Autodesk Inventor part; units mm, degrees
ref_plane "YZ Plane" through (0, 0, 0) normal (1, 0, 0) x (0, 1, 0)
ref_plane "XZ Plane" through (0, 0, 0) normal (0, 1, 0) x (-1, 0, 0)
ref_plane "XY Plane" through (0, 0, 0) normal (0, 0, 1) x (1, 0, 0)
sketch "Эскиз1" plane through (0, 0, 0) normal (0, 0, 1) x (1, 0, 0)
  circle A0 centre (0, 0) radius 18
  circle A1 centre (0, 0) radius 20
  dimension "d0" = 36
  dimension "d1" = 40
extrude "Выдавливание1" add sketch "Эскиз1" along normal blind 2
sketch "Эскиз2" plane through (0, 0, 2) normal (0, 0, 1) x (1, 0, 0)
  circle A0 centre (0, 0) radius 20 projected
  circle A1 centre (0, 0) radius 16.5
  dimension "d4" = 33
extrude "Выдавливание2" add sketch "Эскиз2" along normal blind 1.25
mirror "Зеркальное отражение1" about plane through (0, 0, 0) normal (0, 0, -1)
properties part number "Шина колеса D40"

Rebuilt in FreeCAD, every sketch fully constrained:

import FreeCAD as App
import Part
import Sketcher

V = App.Vector

doc = App.newDocument("Part")
body = doc.addObject("PartDesign::Body", "Body")

# Sketch on XY plane
sketch1 = doc.addObject("Sketcher::SketchObject", "Sketch")
body.addObject(sketch1)
sketch1.AttachmentSupport = (doc.XY_Plane, [""])
sketch1.MapMode = "FlatFace"
sketch1.addGeometry([
    Part.Circle(V(0, 0, 0), V(0, 0, 1), 20),
    Part.Circle(V(0, 0, 0), V(0, 0, 1), 18),
], False)
sketch1.addConstraint([
    Sketcher.Constraint("Coincident", 0, 3, -1, 1),
    Sketcher.Constraint("Coincident", 1, 3, -1, 1),
    Sketcher.Constraint("Diameter", 0, 40.0),
    Sketcher.Constraint("Diameter", 1, 36.0),
])
pad1 = doc.addObject("PartDesign::Pad", "Pad")
body.addObject(pad1)
pad1.Profile = sketch1
pad1.Length = 2

# Sketch on XY plane
sketch2 = doc.addObject("Sketcher::SketchObject", "Sketch001")
body.addObject(sketch2)
sketch2.AttachmentSupport = (doc.XY_Plane, [""])
sketch2.MapMode = "FlatFace"
sketch2.AttachmentOffset = App.Placement(V(0, 0, 2), App.Rotation())
sketch2.addGeometry([
    Part.Circle(V(0, 0, 0), V(0, 0, 1), 20),
    Part.Circle(V(0, 0, 0), V(0, 0, 1), 16),
], False)
sketch2.addConstraint([
    Sketcher.Constraint("Coincident", 0, 3, -1, 1),
    Sketcher.Constraint("Coincident", 1, 3, -1, 1),
    Sketcher.Constraint("Diameter", 1, 33.0),
    Sketcher.Constraint("Diameter", 0, 40.0),
])
pad2 = doc.addObject("PartDesign::Pad", "Pad001")
body.addObject(pad2)
pad2.Profile = sketch2
pad2.Length = 1.25
doc.recompute()

mirrored = doc.addObject("PartDesign::Mirrored", "Mirrored")
body.addObject(mirrored)
mirrored.TransformMode = "Transform body"
mirrored.MirrorPlane = (doc.XY_Plane, [""])
body.Tip = mirrored

doc.recompute()
